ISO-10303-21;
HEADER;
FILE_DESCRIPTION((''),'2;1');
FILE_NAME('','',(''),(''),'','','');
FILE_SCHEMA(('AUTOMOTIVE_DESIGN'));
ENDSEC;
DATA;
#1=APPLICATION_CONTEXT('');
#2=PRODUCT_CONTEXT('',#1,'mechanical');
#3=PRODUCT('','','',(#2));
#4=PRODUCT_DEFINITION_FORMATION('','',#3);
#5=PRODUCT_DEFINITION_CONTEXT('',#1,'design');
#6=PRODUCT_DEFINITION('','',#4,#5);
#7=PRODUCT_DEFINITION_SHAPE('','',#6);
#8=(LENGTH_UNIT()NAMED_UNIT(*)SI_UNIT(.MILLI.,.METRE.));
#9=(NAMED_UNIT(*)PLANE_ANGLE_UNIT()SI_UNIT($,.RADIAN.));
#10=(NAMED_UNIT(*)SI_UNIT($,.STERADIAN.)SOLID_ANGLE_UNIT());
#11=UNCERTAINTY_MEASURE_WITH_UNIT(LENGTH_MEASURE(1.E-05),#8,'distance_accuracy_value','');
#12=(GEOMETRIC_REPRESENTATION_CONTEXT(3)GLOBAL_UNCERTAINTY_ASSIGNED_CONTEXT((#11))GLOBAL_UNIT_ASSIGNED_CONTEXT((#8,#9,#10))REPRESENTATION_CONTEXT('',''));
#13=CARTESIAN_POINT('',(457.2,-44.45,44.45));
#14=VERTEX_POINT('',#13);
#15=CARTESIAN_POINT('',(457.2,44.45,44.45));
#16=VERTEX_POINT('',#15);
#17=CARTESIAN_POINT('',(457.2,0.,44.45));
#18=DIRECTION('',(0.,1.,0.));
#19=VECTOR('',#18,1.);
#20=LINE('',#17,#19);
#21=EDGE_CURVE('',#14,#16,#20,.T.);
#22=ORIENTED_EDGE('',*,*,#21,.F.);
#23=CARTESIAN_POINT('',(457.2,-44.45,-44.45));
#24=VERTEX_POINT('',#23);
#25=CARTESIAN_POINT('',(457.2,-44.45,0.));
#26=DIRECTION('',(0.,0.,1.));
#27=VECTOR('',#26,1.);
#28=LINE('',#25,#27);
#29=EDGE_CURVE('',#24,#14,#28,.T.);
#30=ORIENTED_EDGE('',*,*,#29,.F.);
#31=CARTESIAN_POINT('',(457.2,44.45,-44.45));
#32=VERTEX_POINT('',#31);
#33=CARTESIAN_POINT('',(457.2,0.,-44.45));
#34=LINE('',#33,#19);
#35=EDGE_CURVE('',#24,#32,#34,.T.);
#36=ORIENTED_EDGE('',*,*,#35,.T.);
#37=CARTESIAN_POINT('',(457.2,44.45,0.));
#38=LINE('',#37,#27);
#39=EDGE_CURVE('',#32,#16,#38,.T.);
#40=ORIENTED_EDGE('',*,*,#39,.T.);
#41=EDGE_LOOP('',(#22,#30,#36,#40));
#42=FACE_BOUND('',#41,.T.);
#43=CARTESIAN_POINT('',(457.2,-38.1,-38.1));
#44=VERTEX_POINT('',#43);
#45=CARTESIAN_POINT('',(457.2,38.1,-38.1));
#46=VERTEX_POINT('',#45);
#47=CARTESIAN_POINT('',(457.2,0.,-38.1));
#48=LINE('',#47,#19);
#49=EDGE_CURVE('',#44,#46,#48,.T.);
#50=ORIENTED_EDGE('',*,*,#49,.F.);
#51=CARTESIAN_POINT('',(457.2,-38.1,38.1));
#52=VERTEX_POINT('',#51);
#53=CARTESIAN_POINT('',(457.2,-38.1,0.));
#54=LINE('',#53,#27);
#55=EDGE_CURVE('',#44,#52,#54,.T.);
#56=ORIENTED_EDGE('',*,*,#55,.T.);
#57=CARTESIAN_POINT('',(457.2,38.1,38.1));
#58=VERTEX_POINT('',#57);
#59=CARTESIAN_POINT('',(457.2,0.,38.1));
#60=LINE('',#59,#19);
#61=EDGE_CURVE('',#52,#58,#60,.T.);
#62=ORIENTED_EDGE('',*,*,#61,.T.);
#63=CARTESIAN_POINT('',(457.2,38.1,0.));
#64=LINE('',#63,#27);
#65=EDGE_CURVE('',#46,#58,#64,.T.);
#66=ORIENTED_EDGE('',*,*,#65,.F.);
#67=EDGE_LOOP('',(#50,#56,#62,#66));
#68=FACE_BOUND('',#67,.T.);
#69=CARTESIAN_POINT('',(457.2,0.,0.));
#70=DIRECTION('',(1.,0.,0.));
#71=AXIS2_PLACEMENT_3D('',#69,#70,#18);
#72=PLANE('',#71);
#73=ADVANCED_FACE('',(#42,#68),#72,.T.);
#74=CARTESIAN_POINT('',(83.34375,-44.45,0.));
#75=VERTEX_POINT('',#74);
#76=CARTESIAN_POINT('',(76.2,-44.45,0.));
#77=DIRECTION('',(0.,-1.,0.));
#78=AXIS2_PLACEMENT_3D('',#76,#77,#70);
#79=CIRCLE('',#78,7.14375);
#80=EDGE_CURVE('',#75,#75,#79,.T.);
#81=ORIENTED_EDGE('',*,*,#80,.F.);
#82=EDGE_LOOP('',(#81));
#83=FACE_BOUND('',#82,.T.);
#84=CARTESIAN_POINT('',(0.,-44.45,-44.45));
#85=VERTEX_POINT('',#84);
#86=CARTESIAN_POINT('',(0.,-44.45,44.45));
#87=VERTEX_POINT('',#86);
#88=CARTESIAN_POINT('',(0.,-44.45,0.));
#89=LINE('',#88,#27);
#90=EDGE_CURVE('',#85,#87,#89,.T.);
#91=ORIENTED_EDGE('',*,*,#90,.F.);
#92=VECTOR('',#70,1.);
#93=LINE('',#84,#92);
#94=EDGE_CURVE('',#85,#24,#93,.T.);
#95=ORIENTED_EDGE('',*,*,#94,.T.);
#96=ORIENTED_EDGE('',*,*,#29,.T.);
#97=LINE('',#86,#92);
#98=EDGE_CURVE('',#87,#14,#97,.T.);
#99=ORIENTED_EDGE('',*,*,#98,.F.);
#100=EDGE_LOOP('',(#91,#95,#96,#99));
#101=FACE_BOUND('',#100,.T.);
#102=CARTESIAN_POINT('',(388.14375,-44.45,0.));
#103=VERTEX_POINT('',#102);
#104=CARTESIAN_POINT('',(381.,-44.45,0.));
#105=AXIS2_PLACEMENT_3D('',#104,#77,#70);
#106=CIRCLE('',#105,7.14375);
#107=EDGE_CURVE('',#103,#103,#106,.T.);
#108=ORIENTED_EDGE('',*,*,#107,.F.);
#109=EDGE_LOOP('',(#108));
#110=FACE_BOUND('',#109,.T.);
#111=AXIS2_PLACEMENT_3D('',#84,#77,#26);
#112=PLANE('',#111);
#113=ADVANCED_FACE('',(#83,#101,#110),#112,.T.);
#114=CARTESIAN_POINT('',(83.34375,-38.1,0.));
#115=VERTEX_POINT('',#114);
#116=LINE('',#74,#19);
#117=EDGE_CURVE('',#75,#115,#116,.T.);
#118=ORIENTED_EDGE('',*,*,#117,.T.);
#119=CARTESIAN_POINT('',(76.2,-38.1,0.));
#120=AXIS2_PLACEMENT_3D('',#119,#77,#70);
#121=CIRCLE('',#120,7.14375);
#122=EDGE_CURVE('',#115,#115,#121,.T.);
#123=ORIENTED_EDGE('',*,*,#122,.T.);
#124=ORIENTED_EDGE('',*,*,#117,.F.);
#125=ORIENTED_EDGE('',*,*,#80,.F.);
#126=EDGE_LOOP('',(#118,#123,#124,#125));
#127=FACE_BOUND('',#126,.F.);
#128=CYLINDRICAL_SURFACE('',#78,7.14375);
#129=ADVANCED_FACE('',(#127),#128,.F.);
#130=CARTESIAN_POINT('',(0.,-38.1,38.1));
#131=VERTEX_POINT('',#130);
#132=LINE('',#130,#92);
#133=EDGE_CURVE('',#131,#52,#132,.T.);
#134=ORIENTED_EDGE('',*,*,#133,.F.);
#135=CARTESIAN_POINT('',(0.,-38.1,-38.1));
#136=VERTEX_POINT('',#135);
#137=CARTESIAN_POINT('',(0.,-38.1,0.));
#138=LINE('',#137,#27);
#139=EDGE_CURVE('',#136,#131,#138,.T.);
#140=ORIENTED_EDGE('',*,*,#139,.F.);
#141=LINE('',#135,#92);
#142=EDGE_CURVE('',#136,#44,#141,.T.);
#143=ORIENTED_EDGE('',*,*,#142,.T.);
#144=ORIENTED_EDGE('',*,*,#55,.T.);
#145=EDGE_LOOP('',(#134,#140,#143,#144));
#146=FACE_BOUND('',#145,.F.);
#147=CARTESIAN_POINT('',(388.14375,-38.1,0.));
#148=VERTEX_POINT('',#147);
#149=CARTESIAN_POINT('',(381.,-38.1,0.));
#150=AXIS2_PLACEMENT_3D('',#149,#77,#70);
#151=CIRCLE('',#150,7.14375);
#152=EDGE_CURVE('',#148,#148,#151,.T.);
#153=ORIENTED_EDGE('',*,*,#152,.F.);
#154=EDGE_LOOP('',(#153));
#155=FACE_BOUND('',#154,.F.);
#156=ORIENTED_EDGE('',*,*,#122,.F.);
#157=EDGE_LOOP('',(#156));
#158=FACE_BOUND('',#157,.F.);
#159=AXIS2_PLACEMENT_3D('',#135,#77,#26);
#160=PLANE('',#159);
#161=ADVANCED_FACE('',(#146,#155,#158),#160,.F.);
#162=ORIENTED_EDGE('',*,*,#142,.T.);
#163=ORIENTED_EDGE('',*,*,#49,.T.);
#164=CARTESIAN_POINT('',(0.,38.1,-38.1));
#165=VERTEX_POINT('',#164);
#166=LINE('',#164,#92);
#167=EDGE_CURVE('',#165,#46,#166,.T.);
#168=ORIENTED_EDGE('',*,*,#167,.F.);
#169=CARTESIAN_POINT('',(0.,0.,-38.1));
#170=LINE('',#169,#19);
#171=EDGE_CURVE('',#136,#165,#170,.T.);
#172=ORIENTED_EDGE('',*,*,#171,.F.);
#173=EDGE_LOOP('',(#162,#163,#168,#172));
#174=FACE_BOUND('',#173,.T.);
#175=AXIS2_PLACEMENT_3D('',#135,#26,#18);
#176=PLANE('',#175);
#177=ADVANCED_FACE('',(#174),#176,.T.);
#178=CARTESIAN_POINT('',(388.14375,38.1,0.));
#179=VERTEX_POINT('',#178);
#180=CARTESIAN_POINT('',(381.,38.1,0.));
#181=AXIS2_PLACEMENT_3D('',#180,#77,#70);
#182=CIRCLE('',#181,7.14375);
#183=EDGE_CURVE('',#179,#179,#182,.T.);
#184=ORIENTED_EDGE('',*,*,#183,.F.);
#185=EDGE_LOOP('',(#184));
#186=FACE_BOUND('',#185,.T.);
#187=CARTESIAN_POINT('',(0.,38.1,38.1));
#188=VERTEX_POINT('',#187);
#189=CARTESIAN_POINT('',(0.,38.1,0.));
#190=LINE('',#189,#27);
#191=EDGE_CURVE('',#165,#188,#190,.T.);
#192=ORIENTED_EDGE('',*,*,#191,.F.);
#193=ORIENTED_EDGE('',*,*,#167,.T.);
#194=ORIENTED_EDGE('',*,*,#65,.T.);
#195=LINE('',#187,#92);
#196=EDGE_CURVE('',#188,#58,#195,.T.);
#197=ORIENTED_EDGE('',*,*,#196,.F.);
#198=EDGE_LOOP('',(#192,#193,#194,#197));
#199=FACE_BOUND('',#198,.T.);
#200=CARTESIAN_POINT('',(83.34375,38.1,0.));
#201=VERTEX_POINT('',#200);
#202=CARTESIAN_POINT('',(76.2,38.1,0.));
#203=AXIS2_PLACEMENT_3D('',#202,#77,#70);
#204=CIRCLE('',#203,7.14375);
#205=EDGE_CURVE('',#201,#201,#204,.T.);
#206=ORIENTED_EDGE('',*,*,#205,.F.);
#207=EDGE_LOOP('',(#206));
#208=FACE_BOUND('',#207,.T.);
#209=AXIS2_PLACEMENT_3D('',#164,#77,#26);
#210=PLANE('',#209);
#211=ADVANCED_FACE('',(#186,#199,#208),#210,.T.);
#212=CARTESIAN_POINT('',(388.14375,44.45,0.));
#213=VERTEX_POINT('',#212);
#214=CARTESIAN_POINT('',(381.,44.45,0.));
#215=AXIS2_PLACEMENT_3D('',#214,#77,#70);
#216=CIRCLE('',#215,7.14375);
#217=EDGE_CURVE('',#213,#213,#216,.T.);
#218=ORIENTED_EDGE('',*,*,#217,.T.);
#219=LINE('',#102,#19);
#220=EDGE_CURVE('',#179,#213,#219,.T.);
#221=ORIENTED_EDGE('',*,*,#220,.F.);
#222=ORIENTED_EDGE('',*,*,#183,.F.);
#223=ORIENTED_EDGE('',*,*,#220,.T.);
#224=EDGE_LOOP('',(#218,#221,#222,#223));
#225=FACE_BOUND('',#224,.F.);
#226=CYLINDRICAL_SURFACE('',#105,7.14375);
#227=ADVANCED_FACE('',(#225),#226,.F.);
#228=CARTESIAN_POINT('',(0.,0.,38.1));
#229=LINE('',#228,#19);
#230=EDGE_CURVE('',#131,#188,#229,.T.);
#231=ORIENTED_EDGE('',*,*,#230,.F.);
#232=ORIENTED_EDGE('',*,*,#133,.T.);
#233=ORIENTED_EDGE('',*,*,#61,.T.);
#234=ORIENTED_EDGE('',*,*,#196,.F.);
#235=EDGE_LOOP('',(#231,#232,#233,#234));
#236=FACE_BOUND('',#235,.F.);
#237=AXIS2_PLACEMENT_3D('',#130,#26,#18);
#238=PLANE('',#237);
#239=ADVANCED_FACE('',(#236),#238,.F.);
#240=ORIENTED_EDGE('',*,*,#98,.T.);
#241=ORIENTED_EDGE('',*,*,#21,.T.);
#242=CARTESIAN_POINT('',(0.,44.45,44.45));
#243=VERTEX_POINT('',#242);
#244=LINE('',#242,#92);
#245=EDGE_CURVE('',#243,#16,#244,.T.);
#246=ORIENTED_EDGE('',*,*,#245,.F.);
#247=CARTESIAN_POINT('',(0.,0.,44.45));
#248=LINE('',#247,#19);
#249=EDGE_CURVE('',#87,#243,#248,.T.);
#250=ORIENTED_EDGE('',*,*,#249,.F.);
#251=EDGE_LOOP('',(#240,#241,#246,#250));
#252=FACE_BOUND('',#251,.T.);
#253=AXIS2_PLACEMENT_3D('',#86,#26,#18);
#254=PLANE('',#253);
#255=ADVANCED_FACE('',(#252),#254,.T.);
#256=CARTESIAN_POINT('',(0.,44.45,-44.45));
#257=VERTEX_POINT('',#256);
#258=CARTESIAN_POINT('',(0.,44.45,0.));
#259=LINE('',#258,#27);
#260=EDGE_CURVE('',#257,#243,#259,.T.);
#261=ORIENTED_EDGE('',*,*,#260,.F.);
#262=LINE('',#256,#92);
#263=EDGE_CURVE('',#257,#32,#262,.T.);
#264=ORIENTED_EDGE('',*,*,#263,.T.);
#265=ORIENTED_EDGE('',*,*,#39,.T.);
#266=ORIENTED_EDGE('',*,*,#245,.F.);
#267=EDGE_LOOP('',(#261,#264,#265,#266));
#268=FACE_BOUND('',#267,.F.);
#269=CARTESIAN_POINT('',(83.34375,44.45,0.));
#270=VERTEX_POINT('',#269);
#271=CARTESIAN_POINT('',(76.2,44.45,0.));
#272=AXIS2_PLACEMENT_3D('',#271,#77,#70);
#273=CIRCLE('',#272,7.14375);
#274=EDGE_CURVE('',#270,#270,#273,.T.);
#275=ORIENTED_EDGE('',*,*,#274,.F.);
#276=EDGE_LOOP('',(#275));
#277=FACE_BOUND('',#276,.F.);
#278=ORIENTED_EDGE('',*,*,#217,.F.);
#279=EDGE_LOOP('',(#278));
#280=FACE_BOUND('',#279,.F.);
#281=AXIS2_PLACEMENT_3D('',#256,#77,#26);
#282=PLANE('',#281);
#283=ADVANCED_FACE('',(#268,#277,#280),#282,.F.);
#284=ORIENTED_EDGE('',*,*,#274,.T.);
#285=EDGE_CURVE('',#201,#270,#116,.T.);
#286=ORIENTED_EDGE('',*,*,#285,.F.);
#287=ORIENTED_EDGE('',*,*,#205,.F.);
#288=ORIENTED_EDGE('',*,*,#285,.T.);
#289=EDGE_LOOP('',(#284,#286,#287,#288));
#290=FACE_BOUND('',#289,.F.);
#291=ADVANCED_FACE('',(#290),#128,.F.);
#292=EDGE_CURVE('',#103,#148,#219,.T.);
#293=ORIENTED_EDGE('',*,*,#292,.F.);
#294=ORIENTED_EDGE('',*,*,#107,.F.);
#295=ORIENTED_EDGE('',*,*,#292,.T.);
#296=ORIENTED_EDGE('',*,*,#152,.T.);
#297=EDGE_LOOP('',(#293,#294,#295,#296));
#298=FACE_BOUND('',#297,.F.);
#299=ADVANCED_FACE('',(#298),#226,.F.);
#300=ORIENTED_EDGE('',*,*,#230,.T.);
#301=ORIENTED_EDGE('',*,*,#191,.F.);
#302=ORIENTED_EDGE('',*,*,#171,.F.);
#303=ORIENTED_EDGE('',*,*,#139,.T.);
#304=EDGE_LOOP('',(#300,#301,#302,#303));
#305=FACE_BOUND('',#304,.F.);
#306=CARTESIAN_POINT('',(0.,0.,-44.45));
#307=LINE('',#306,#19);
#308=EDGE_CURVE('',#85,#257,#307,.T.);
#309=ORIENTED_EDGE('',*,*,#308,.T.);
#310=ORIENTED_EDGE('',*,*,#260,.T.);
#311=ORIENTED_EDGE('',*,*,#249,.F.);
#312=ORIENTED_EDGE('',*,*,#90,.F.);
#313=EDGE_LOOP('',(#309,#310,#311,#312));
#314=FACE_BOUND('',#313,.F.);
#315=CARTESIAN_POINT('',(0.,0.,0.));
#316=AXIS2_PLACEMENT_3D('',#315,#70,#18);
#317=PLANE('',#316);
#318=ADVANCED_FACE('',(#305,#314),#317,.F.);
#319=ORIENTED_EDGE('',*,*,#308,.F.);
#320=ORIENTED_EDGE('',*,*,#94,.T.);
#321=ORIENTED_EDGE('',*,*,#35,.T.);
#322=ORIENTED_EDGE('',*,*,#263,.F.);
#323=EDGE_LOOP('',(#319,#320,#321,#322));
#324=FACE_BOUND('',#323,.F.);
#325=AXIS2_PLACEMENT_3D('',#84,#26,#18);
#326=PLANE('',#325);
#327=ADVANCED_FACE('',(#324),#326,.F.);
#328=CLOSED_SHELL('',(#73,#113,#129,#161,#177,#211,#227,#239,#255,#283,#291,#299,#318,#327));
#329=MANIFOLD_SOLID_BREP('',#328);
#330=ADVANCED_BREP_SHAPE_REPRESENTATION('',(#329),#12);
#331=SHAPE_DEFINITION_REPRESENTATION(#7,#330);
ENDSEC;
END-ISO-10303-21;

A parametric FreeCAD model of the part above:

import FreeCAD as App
import Part
import Sketcher
Q = App.Units.Quantity

doc = App.newDocument("Part")
body = doc.addObject("PartDesign::Body", "Body")

# Sketch on YZ plane
sketch1 = doc.addObject("Sketcher::SketchObject", "Sketch")
body.addObject(sketch1)
sketch1.AttachmentSupport = (doc.YZ_Plane, [""])
sketch1.MapMode = "FlatFace"
sketch1.addGeometry(Part.LineSegment(App.Vector(-44, 44, 0), App.Vector(-44, -44, 0)), False)
sketch1.addGeometry(Part.LineSegment(App.Vector(-44, -44, 0), App.Vector(44, -44, 0)), False)
sketch1.addGeometry(Part.LineSegment(App.Vector(44, -44, 0), App.Vector(44, 44, 0)), False)
sketch1.addGeometry(Part.LineSegment(App.Vector(44, 44, 0), App.Vector(-44, 44, 0)), False)
sketch1.addGeometry(Part.LineSegment(App.Vector(38, -38, 0), App.Vector(-38, -38, 0)), False)
sketch1.addGeometry(Part.LineSegment(App.Vector(-38, -38, 0), App.Vector(-38, 38, 0)), False)
sketch1.addGeometry(Part.LineSegment(App.Vector(-38, 38, 0), App.Vector(38, 38, 0)), False)
sketch1.addGeometry(Part.LineSegment(App.Vector(38, 38, 0), App.Vector(38, -38, 0)), False)
sketch1.addConstraint(Sketcher.Constraint("Coincident", 0, 2, 1, 1))
sketch1.addConstraint(Sketcher.Constraint("Coincident", 1, 2, 2, 1))
sketch1.addConstraint(Sketcher.Constraint("Coincident", 2, 2, 3, 1))
sketch1.addConstraint(Sketcher.Constraint("Coincident", 3, 2, 0, 1))
sketch1.addConstraint(Sketcher.Constraint("Coincident", 4, 2, 5, 1))
sketch1.addConstraint(Sketcher.Constraint("Coincident", 5, 2, 6, 1))
sketch1.addConstraint(Sketcher.Constraint("Coincident", 6, 2, 7, 1))
sketch1.addConstraint(Sketcher.Constraint("Coincident", 7, 2, 4, 1))
sketch1.addConstraint(Sketcher.Constraint("Vertical", 0))
sketch1.addConstraint(Sketcher.Constraint("Horizontal", 1))
sketch1.addConstraint(Sketcher.Constraint("Vertical", 2))
sketch1.addConstraint(Sketcher.Constraint("Horizontal", 3))
sketch1.addConstraint(Sketcher.Constraint("Horizontal", 4))
sketch1.addConstraint(Sketcher.Constraint("Vertical", 5))
sketch1.addConstraint(Sketcher.Constraint("Horizontal", 6))
sketch1.addConstraint(Sketcher.Constraint("Vertical", 7))
sketch1.addConstraint(Sketcher.Constraint("Symmetric", 0, 2, 2, 2, -1, 1))
sketch1.addConstraint(Sketcher.Constraint("Symmetric", 4, 2, 6, 2, -1, 1))
sketch1.addConstraint(Sketcher.Constraint("Equal", 3, 0))
sketch1.addConstraint(Sketcher.Constraint("Equal", 6, 5))
sketch1.addConstraint(Sketcher.Constraint("DistanceX", 4, 2, 4, 1, Q("3 in")))
sketch1.addConstraint(Sketcher.Constraint("DistanceX", 1, 1, 1, 2, Q("3.5 in")))
pad1 = doc.addObject("PartDesign::Pad", "Pad")
body.addObject(pad1)
pad1.Profile = sketch1
pad1.Length = Q("18 in")

# Sketch on XZ plane
sketch2 = doc.addObject("Sketcher::SketchObject", "Sketch001")
body.addObject(sketch2)
sketch2.AttachmentSupport = (doc.XZ_Plane, [""])
sketch2.MapMode = "FlatFace"
sketch2.AttachmentOffset = App.Placement(App.Vector(0, 0, 1.75 * 25.4), App.Rotation())
sketch2.addGeometry(Part.Circle(App.Vector(381, 0, 0), App.Vector(0, 0, 1), 7), False)
sketch2.addGeometry(Part.Circle(App.Vector(76, 0, 0), App.Vector(0, 0, 1), 7), False)
sketch2.addConstraint(Sketcher.Constraint("Equal", 0, 1))
sketch2.addConstraint(Sketcher.Constraint("PointOnObject", 0, 3, -1))
sketch2.addConstraint(Sketcher.Constraint("PointOnObject", 1, 3, -1))
sketch2.addConstraint(Sketcher.Constraint("Diameter", 0, Q("0.5625 in")))
sketch2.addConstraint(Sketcher.Constraint("DistanceX", -1, 1, 0, 3, Q("15 in")))
sketch2.addConstraint(Sketcher.Constraint("DistanceX", -1, 1, 1, 3, Q("3 in")))
pocket1 = doc.addObject("PartDesign::Pocket", "Pocket")
body.addObject(pocket1)
pocket1.Profile = sketch2
pocket1.Type = "ThroughAll"

doc.recompute()
